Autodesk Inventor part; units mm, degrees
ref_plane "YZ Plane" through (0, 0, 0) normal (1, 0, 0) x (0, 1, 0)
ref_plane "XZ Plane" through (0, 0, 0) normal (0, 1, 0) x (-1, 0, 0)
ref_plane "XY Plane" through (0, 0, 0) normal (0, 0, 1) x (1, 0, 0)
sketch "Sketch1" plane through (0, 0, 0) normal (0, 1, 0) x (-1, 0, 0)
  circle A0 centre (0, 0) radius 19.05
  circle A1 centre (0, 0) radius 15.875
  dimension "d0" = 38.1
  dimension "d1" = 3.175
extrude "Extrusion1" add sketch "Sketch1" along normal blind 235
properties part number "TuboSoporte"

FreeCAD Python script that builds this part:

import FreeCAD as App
import Part
import Sketcher

V = App.Vector
Q = App.Units.Quantity

doc = App.newDocument("Part")
body = doc.addObject("PartDesign::Body", "Body")

# Sketch on XZ plane
sketch1 = doc.addObject("Sketcher::SketchObject", "Sketch")
body.addObject(sketch1)
sketch1.AttachmentSupport = (doc.XZ_Plane, [""])
sketch1.MapMode = "FlatFace"
sketch1.addGeometry([
    Part.Circle(V(0, 0, 0), V(0, 0, 1), 19.05),
    Part.Circle(V(0, 0, 0), V(0, 0, 1), 15.875),
], False)
sketch1.addConstraint([
    Sketcher.Constraint("Coincident", 0, 3, -1, 1),
    Sketcher.Constraint("Coincident", 1, 3, -1, 1),
    Sketcher.Constraint("Diameter", 0, Q("1.5 in")),
    Sketcher.Constraint("Diameter", 1, Q("1.25 in")),
])
pad1 = doc.addObject("PartDesign::Pad", "Pad")
body.addObject(pad1)
pad1.Profile = sketch1
pad1.Length = 235
pad1.Reversed = True

doc.recompute()
